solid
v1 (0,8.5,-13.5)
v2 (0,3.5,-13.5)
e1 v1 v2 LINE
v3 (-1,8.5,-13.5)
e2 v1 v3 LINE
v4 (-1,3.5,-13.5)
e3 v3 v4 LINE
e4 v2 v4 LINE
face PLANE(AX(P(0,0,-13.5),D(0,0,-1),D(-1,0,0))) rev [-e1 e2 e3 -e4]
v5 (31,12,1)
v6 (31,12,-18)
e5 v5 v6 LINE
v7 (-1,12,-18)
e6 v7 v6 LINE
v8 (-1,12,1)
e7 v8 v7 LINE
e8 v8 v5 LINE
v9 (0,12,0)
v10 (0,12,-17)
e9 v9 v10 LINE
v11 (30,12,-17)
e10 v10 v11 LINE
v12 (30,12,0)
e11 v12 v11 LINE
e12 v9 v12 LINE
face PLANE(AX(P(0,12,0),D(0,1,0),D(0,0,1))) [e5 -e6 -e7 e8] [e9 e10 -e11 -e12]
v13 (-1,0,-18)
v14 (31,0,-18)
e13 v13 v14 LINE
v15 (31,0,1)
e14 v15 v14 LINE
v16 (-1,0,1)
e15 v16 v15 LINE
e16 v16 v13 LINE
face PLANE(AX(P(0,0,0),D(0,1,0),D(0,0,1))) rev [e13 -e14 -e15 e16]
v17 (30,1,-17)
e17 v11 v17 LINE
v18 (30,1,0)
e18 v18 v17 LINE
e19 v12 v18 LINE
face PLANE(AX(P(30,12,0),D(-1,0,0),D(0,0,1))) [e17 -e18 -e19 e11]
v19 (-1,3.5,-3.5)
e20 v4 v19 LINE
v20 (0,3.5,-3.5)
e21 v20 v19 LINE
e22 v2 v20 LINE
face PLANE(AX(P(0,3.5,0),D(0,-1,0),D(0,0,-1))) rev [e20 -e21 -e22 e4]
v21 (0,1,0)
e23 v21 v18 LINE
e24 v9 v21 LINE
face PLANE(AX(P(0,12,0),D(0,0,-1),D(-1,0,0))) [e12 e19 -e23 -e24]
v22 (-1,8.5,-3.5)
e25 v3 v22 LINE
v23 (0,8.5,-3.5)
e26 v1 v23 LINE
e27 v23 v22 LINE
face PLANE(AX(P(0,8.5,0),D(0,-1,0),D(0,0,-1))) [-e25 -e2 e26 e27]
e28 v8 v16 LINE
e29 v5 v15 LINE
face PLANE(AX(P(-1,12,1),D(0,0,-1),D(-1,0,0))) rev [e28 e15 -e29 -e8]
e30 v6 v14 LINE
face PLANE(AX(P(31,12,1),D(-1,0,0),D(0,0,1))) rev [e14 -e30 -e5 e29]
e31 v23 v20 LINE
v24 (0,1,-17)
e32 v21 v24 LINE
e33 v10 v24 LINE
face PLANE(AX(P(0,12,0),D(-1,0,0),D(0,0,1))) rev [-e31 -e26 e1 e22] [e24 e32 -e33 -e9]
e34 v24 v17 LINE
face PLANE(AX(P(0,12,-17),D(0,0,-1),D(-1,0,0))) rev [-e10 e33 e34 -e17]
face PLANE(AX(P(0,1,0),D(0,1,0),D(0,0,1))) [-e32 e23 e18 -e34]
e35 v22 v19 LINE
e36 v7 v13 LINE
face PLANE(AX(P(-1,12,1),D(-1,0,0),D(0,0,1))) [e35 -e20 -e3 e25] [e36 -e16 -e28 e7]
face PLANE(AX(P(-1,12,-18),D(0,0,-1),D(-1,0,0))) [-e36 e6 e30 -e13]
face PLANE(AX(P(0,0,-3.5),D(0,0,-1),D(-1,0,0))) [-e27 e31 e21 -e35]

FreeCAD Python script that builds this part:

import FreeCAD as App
import Part
import Sketcher

V = App.Vector


def add_polygon(sketch, points):
    """Adds a closed chain of lines whose ends are joined by coincident constraints."""
    first, n = sketch.GeometryCount, len(points)
    for a, b in zip(points, points[1:] + points[:1]):
        sketch.addGeometry(Part.LineSegment(App.Vector(*a, 0), App.Vector(*b, 0)), False)
    for i in range(n):
        sketch.addConstraint(Sketcher.Constraint("Coincident", first + i, 2, first + (i + 1) % n, 1))

doc = App.newDocument("Part")
params = doc.addObject("Spreadsheet::Sheet", "Params")
for row, (alias, value) in enumerate([
    ("sketch1_width", "32 mm"),
    ("sketch1_width2", "30 mm"),
    ("sketch1_height", "19 mm"),
    ("sketch1_height2", "17 mm"),
    ("pad1_length", "12 mm"),
    ("sketch2_width", "30 mm"),
    ("sketch2_height", "17 mm"),
    ("pad2_length", "1 mm"),
    ("sketch3_width", "5 mm"),
    ("sketch3_height", "10 mm"),
    ("pocket1_length", "1 mm"),
], start=1):
    params.set(f"A{row}", alias)
    params.set(f"B{row}", "=" + value)
    params.setAlias(f"B{row}", alias)

body = doc.addObject("PartDesign::Body", "Body")

sketch1 = body.newObject("Sketcher::SketchObject", "Sketch")
sketch1.AttachmentSupport = (doc.getObject("XZ_Plane"), [""])
sketch1.MapMode = "FlatFace"
add_polygon(sketch1, [(-1, -18), (-1, 1), (31, 1), (31, -18)])
add_polygon(sketch1, [(30, 0), (0, 0), (0, -17), (30, -17)])
sketch1.addConstraint([
    Sketcher.Constraint("Vertical", 0),
    Sketcher.Constraint("Horizontal", 1),
    Sketcher.Constraint("Vertical", 2),
    Sketcher.Constraint("Horizontal", 3),
    Sketcher.Constraint("Horizontal", 4),
    Sketcher.Constraint("Vertical", 5),
    Sketcher.Constraint("Horizontal", 6),
    Sketcher.Constraint("Vertical", 7),
    Sketcher.Constraint("Coincident", 4, 2, -1, 1),
    Sketcher.Constraint("DistanceX", 1, 1, 1, 2, 32.0),
    Sketcher.Constraint("DistanceX", 4, 2, 4, 1, 30.0),
    Sketcher.Constraint("DistanceY", 0, 1, 0, 2, 19.0),
    Sketcher.Constraint("DistanceY", 5, 2, 5, 1, 17.0),
    Sketcher.Constraint("DistanceX", 0, 2, -1, 1, 1.0),
    Sketcher.Constraint("DistanceY", -1, 1, 0, 2, 1.0),
])
sketch1.setExpression("Constraints[17]", "Params.sketch1_width")
sketch1.setExpression("Constraints[18]", "Params.sketch1_width2")
sketch1.setExpression("Constraints[19]", "Params.sketch1_height")
sketch1.setExpression("Constraints[20]", "Params.sketch1_height2")
pad1 = body.newObject("PartDesign::Pad", "Pad")
pad1.Profile = sketch1
pad1.setExpression("Length", "Params.pad1_length")
pad1.Reversed = True

sketch2 = body.newObject("Sketcher::SketchObject", "Sketch001")
sketch2.AttachmentSupport = (doc.getObject("XZ_Plane"), [""])
sketch2.MapMode = "FlatFace"
add_polygon(sketch2, [(0, -17), (0, 0), (30, 0), (30, -17)])
sketch2.addConstraint([
    Sketcher.Constraint("Vertical", 0),
    Sketcher.Constraint("Horizontal", 1),
    Sketcher.Constraint("Vertical", 2),
    Sketcher.Constraint("Horizontal", 3),
    Sketcher.Constraint("Coincident", 0, 2, -1, 1),
    Sketcher.Constraint("DistanceX", 1, 1, 1, 2, 30.0),
    Sketcher.Constraint("DistanceY", 0, 1, 0, 2, 17.0),
])
sketch2.setExpression("Constraints[9]", "Params.sketch2_width")
sketch2.setExpression("Constraints[10]", "Params.sketch2_height")
pad2 = body.newObject("PartDesign::Pad", "Pad001")
pad2.Profile = sketch2
pad2.setExpression("Length", "Params.pad2_length")
pad2.Reversed = True

sketch3 = body.newObject("Sketcher::SketchObject", "Sketch002")
sketch3.AttachmentSupport = (doc.getObject("YZ_Plane"), [""])
sketch3.MapMode = "FlatFace"
sketch3.AttachmentOffset = App.Placement(V(0, 0, -1), App.Rotation())
add_polygon(sketch3, [(8.5, -13.5), (3.5, -13.5), (3.5, -3.5), (8.5, -3.5)])
sketch3.addConstraint([
    Sketcher.Constraint("Horizontal", 0),
    Sketcher.Constraint("Vertical", 1),
    Sketcher.Constraint("Horizontal", 2),
    Sketcher.Constraint("Vertical", 3),
    Sketcher.Constraint("DistanceX", 0, 2, 0, 1, 5.0),
    Sketcher.Constraint("DistanceY", 1, 1, 1, 2, 10.0),
    Sketcher.Constraint("DistanceX", -1, 1, 0, 2, 3.5),
    Sketcher.Constraint("DistanceY", 0, 2, -1, 1, 13.5),
])
sketch3.setExpression("Constraints[8]", "Params.sketch3_width")
sketch3.setExpression("Constraints[9]", "Params.sketch3_height")
pocket1 = body.newObject("PartDesign::Pocket", "Pocket")
pocket1.Profile = sketch3
pocket1.setExpression("Length", "Params.pocket1_length")
pocket1.Reversed = True

doc.recompute()
